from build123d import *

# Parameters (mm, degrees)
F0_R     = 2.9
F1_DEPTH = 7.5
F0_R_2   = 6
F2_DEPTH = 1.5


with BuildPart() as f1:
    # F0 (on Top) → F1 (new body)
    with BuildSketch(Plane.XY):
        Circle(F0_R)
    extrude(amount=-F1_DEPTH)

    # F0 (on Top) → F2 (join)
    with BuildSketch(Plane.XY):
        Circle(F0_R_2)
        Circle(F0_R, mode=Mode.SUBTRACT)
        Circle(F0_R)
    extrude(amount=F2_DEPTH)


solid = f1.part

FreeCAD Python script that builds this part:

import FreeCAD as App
import Part
import Sketcher

doc = App.newDocument("Part")
params = doc.addObject("Spreadsheet::Sheet", "Params")
for row, (alias, value) in enumerate([
    ("sketch1_diameter", "5.8 mm"),
    ("pad1_length", "7.5 mm"),
    ("sketch2_diameter", "12 mm"),
    ("pad2_length", "1.5 mm"),
], start=1):
    params.set(f"A{row}", alias)
    params.set(f"B{row}", "=" + value)
    params.setAlias(f"B{row}", alias)

body = doc.addObject("PartDesign::Body", "Body")

# Sketch on XY plane
sketch1 = body.newObject("Sketcher::SketchObject", "Sketch")
sketch1.AttachmentSupport = (doc.getObject("XY_Plane"), [""])
sketch1.MapMode = "FlatFace"
sketch1.addGeometry(Part.Circle(App.Vector(0, 0, 0), App.Vector(0, 0, 1), 2.9), False)
sketch1.addConstraint([
    Sketcher.Constraint("Coincident", 0, 3, -1, 1),
    Sketcher.Constraint("Diameter", 0, 5.8),
])
sketch1.setExpression("Constraints[1]", "Params.sketch1_diameter")
pad1 = body.newObject("PartDesign::Pad", "Pad")
pad1.Profile = sketch1
pad1.setExpression("Length", "Params.pad1_length")
pad1.Reversed = True

# Sketch on XY plane
sketch2 = body.newObject("Sketcher::SketchObject", "Sketch001")
sketch2.AttachmentSupport = (doc.getObject("XY_Plane"), [""])
sketch2.MapMode = "FlatFace"
sketch2.addGeometry(Part.Circle(App.Vector(0, 0, 0), App.Vector(0, 0, 1), 6), False)
sketch2.addConstraint([
    Sketcher.Constraint("Coincident", 0, 3, -1, 1),
    Sketcher.Constraint("Diameter", 0, 12.0),
])
sketch2.setExpression("Constraints[1]", "Params.sketch2_diameter")
pad2 = body.newObject("PartDesign::Pad", "Pad001")
pad2.Profile = sketch2
pad2.setExpression("Length", "Params.pad2_length")

doc.recompute()
